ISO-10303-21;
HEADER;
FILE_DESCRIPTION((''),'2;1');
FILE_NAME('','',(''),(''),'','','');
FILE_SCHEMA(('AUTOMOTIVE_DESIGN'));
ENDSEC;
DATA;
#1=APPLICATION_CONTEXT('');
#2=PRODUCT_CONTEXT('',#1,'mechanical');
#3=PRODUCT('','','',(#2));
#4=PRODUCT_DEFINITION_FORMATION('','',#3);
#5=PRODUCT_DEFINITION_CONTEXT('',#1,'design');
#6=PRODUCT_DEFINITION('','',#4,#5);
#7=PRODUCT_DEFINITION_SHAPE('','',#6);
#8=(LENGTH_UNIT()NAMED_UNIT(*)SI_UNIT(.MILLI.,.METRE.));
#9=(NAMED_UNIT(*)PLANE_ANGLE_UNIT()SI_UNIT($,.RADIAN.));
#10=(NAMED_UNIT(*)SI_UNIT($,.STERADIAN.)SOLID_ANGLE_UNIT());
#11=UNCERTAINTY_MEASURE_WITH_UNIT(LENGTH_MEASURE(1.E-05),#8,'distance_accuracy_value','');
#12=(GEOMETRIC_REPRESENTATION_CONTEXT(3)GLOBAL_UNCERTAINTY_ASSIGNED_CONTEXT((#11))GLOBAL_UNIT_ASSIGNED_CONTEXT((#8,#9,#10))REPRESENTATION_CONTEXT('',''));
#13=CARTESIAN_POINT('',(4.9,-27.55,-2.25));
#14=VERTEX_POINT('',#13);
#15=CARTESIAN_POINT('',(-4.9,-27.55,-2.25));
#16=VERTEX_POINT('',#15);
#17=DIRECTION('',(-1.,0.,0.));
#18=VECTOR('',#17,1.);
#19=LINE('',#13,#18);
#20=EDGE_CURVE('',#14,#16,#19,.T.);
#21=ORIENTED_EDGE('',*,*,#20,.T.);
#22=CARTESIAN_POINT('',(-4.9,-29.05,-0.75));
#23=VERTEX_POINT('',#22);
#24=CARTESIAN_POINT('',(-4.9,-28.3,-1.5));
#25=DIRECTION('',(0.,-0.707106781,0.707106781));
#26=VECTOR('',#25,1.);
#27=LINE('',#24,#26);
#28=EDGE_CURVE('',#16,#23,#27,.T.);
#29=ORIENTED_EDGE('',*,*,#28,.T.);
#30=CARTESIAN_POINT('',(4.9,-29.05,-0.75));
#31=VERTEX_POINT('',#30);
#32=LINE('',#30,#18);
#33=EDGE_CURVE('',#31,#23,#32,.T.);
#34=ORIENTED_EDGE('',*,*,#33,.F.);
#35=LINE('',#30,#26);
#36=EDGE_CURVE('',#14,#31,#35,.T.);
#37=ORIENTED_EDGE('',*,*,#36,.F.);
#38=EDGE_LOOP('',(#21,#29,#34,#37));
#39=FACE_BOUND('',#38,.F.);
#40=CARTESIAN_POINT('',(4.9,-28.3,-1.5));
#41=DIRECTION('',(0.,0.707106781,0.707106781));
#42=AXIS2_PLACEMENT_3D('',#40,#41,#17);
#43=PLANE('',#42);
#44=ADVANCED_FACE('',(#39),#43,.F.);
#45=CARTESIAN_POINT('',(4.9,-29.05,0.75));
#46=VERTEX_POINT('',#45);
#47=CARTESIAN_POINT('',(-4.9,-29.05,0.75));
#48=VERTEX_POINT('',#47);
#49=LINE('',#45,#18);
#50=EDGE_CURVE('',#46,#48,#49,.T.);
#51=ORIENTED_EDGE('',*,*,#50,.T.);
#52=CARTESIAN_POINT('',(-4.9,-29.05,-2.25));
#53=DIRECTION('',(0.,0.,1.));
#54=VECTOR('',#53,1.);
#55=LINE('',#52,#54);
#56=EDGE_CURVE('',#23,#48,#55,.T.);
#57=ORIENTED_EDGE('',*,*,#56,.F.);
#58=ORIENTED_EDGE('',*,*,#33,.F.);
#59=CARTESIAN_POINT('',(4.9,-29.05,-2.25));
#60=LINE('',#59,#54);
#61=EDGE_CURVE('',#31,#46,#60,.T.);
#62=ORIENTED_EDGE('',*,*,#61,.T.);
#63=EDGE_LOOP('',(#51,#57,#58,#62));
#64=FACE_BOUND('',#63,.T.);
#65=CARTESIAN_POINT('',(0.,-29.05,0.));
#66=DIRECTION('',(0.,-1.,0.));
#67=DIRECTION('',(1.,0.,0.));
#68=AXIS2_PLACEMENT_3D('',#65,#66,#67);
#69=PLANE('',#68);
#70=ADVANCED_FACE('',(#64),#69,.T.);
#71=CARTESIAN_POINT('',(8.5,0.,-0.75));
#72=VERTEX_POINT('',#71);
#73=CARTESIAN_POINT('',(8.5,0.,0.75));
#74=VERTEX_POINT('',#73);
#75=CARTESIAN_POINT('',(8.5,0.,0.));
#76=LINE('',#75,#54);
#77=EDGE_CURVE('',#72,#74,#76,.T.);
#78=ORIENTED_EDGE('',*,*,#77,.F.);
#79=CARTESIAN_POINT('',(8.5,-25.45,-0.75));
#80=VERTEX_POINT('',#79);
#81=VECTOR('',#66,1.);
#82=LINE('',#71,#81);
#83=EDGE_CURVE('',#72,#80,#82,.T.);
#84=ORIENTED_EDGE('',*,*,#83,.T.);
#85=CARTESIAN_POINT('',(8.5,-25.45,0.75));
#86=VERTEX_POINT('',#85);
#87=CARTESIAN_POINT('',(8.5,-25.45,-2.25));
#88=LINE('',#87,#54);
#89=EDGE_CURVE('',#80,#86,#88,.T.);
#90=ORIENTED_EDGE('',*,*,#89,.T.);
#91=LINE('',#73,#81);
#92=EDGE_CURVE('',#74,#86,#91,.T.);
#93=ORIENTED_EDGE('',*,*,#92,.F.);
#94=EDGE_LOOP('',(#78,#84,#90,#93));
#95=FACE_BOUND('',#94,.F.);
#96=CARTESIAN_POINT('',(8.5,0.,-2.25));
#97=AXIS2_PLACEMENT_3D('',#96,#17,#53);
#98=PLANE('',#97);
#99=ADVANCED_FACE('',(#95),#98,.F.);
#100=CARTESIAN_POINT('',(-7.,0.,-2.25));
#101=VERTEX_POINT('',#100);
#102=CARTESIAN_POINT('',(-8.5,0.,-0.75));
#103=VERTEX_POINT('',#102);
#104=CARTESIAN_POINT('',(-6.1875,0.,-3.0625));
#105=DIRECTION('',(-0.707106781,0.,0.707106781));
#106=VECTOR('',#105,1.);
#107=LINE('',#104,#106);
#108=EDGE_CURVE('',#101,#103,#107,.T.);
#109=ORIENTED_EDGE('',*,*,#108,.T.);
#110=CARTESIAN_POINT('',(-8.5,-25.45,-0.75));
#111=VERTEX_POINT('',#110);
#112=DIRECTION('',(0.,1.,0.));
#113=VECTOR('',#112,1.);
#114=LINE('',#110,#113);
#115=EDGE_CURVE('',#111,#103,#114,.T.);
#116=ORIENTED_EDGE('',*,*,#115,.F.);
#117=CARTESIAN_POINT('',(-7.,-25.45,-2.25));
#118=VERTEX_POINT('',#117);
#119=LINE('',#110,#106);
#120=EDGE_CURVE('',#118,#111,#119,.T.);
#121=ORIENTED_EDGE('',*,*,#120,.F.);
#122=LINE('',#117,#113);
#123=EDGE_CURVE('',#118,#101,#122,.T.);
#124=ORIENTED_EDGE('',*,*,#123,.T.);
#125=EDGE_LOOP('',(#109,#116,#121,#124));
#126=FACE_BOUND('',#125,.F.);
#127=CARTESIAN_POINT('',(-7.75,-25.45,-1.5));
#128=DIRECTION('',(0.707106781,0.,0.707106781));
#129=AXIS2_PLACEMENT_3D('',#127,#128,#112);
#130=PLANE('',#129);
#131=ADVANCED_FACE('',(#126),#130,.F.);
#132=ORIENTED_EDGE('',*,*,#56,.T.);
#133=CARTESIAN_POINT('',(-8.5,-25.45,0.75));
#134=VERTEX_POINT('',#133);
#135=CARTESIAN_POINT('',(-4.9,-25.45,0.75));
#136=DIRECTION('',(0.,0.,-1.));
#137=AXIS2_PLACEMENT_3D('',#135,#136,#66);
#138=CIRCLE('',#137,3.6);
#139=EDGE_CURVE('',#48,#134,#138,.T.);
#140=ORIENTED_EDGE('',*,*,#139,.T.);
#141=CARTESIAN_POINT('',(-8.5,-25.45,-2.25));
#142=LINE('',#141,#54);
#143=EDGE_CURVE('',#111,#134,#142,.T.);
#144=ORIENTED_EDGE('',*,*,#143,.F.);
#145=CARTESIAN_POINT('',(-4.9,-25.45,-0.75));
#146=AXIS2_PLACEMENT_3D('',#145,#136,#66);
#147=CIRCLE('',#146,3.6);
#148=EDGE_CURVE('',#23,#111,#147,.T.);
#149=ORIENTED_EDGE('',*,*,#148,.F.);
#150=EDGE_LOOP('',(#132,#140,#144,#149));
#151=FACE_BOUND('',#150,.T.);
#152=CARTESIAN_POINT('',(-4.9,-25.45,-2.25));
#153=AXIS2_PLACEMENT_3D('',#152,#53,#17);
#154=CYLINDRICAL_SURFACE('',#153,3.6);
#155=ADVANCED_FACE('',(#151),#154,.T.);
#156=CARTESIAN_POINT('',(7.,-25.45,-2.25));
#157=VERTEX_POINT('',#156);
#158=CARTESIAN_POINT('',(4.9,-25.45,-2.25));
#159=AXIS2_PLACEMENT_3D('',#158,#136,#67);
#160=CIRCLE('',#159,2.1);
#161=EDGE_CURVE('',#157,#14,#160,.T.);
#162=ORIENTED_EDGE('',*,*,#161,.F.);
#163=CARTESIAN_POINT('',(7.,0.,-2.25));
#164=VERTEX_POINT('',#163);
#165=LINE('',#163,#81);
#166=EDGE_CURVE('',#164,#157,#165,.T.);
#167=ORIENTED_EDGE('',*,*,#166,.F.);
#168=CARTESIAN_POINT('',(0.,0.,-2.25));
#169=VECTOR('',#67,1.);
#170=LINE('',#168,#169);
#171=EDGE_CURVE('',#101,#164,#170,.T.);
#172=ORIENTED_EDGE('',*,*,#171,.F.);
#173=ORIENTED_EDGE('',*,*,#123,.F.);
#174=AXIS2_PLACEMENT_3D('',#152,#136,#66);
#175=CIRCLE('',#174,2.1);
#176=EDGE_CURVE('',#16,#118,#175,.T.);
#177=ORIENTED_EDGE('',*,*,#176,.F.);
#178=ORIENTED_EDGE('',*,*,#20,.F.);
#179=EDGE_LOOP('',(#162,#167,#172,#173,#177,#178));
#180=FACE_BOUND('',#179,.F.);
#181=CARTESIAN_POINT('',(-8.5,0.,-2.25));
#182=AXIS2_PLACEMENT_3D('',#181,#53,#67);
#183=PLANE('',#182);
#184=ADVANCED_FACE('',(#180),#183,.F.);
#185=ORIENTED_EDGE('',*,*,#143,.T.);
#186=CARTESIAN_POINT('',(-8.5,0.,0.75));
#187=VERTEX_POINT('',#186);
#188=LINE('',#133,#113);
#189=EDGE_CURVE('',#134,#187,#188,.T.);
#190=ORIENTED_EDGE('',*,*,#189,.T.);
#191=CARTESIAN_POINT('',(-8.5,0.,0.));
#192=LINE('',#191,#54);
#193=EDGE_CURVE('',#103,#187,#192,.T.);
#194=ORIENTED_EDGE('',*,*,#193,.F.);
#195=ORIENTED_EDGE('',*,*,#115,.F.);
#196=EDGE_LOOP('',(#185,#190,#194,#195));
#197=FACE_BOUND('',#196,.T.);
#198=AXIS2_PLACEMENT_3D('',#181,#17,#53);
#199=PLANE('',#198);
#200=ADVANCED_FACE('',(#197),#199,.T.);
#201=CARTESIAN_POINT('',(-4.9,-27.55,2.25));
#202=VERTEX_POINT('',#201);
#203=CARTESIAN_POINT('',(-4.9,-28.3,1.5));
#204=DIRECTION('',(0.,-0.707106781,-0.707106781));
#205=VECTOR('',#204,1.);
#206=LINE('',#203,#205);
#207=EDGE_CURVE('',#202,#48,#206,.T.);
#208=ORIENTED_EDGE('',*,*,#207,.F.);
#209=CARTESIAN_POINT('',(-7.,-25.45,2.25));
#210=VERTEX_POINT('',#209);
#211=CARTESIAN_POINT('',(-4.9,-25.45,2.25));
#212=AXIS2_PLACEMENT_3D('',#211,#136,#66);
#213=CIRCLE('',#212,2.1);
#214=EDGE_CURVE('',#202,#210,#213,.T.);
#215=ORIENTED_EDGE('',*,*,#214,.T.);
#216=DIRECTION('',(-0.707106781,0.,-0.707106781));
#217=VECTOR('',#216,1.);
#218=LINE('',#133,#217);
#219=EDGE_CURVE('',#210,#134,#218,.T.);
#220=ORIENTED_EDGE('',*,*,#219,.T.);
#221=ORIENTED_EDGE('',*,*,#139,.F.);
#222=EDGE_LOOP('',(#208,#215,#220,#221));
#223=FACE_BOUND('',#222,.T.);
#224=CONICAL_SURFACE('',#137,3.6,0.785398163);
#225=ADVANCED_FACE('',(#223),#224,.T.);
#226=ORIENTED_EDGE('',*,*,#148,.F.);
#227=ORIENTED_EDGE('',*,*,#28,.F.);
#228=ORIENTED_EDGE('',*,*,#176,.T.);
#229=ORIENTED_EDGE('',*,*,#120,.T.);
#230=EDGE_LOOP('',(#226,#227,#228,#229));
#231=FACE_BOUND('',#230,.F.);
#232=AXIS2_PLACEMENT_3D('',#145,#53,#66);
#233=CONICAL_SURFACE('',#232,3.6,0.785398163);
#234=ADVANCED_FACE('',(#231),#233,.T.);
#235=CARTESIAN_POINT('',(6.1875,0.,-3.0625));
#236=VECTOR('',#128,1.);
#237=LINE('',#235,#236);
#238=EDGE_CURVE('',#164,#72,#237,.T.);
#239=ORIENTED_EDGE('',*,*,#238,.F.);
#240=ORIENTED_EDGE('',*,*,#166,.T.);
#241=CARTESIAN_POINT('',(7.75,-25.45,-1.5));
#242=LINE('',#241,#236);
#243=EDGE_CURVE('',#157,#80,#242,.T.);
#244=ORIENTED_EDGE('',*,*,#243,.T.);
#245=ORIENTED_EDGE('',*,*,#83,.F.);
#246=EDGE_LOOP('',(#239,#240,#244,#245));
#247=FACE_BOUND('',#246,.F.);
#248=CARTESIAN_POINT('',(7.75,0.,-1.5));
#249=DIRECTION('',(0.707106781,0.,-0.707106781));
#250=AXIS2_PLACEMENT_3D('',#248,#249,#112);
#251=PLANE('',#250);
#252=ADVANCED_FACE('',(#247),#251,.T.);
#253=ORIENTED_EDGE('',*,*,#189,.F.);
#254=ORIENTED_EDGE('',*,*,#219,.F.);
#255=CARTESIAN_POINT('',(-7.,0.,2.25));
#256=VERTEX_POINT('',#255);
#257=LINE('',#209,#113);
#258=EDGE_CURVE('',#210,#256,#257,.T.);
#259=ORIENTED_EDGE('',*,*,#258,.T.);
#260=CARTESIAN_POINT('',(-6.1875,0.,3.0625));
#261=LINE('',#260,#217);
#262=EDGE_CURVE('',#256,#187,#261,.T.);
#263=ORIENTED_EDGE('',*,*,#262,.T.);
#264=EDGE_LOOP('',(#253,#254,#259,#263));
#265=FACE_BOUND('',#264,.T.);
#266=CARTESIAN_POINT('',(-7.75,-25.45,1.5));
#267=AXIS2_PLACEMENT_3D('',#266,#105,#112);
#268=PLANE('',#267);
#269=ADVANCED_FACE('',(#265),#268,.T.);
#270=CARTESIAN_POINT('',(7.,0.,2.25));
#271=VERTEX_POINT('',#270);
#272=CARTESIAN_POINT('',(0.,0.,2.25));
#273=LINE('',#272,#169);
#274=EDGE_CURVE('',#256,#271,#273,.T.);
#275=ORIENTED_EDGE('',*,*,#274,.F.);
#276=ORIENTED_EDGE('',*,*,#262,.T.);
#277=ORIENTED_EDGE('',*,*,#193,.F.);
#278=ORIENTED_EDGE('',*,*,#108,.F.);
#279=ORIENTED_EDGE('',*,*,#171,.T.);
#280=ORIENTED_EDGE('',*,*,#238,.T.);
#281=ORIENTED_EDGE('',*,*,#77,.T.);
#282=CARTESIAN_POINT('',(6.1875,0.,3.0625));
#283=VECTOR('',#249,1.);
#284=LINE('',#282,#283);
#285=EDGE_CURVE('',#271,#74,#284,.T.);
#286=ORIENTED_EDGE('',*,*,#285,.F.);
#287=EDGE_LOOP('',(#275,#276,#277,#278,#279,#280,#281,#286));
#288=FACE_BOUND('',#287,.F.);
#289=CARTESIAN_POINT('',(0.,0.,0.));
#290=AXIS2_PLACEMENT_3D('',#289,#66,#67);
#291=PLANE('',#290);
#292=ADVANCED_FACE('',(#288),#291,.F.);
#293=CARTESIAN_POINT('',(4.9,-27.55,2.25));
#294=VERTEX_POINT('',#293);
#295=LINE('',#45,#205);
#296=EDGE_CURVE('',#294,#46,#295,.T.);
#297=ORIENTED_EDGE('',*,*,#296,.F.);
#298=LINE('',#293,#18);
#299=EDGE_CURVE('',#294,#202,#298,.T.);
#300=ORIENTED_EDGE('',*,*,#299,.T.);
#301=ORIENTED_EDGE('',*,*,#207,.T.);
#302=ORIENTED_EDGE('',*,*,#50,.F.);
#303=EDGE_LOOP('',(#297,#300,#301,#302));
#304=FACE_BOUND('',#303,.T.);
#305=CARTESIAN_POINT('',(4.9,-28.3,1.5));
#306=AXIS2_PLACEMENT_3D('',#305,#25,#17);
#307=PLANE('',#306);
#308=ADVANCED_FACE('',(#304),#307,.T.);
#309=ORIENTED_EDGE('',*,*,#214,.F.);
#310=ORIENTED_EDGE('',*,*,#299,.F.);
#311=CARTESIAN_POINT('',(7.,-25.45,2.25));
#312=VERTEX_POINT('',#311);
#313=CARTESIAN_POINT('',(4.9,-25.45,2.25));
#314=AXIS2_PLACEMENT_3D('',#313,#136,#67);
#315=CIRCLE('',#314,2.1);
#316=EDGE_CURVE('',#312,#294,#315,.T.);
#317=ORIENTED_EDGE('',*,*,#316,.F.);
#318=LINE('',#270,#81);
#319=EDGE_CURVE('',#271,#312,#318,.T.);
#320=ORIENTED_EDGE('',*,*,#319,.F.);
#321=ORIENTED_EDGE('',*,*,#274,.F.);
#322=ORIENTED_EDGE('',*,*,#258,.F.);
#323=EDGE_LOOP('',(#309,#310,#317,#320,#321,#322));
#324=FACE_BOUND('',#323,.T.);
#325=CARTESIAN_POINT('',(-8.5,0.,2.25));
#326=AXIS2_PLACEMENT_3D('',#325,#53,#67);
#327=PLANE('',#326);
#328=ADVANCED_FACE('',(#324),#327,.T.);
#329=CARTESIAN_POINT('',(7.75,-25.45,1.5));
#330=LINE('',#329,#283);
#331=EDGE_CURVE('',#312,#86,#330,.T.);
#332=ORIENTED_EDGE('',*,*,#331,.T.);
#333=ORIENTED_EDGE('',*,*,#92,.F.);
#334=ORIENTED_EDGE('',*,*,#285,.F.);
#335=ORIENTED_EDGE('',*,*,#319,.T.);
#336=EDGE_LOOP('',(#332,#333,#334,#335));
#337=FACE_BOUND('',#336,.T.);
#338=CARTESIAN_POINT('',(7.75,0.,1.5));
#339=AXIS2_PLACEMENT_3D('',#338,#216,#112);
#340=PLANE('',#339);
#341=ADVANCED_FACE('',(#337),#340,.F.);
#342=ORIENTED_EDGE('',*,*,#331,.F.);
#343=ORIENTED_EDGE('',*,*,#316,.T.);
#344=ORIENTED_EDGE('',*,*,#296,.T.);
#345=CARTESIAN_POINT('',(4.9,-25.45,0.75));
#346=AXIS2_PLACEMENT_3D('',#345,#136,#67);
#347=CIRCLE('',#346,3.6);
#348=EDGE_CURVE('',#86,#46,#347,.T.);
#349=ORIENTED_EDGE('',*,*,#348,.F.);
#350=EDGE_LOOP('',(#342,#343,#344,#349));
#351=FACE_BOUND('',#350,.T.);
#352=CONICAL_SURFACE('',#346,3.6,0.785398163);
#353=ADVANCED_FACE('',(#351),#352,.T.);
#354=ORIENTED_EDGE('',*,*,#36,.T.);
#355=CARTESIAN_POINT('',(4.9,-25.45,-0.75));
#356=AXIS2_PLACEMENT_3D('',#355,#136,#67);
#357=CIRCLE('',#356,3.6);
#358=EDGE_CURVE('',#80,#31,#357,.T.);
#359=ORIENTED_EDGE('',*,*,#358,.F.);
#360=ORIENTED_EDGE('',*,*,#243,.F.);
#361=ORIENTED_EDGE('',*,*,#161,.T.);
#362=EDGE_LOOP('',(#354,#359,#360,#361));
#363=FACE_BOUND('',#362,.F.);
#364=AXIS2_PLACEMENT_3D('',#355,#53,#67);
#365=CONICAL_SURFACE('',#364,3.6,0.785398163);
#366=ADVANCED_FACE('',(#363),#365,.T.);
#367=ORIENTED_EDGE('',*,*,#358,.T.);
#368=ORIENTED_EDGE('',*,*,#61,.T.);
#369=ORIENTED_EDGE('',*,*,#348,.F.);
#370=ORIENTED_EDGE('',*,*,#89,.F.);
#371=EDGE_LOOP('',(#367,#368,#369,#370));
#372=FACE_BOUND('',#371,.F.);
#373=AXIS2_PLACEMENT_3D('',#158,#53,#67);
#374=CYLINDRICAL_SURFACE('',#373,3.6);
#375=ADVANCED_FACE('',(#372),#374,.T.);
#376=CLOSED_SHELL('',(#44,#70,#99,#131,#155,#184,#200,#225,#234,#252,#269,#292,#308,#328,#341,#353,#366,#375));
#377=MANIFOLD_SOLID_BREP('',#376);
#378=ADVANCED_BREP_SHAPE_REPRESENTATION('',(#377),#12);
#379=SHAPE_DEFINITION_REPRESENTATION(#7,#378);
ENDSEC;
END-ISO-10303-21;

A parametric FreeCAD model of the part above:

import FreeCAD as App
import Part
import Sketcher

V = App.Vector


def edges_at(feature, points):
    """Names of the edges that pass closest to the given points."""
    edges = feature.Shape.Edges
    near = lambda p: min(range(len(edges)), key=lambda i: edges[i].distToShape(Part.Vertex(*p))[0])
    return sorted({f"Edge{near(p) + 1}" for p in points})


def add_polygon(sketch, points):
    """Adds a closed chain of lines whose ends are joined by coincident constraints."""
    first, n = sketch.GeometryCount, len(points)
    for a, b in zip(points, points[1:] + points[:1]):
        sketch.addGeometry(Part.LineSegment(App.Vector(*a, 0), App.Vector(*b, 0)), False)
    for i in range(n):
        sketch.addConstraint(Sketcher.Constraint("Coincident", first + i, 2, first + (i + 1) % n, 1))

doc = App.newDocument("Part")
body = doc.addObject("PartDesign::Body", "Body")

# Sketch on XZ plane
sketch1 = body.newObject("Sketcher::SketchObject", "Sketch")
sketch1.AttachmentSupport = (doc.getObject("XZ_Plane"), [""])
sketch1.MapMode = "FlatFace"
add_polygon(sketch1, [(-8.5, 2.2), (-8.5, -2.2), (8.5, -2.2), (8.5, 2.2)])  # lines 0-3
sketch1.addConstraint([
    Sketcher.Constraint("Vertical", 0),
    Sketcher.Constraint("Horizontal", 1),
    Sketcher.Constraint("Vertical", 2),
    Sketcher.Constraint("Horizontal", 3),
    Sketcher.Constraint("Symmetric", 0, 2, 2, 2, -1, 1),
    Sketcher.Constraint("DistanceX", 1, 1, 1, 2, 17.0),
    Sketcher.Constraint("DistanceY", 0, 2, 0, 1, 4.5),
])
pad1 = body.newObject("PartDesign::Pad", "Pad")
pad1.Profile = sketch1
pad1.Length = 29.05
doc.recompute()

fillet = body.newObject("PartDesign::Fillet", "Fillet")
fillet.Base = (pad1, edges_at(pad1, [(8.5, -29.05, 0), (-8.5, -29.05, 0)]))
fillet.Radius = 3.6
doc.recompute()

chamfer = body.newObject("PartDesign::Chamfer", "Chamfer")
chamfer.Base = (fillet, edges_at(fillet, [
    (8.5, -12.725, 2.25),
    (8.5, -12.725, -2.25),
    (-8.5, -12.725, 2.25),
    (-8.5, -12.725, -2.25),
    (0, -29.05, 2.25),
    (4.9, -29.05, 0),
    (-4.9, -29.05, 0),
    (0, -29.05, -2.25),
]))
chamfer.Size = 1.5

doc.recompute()
